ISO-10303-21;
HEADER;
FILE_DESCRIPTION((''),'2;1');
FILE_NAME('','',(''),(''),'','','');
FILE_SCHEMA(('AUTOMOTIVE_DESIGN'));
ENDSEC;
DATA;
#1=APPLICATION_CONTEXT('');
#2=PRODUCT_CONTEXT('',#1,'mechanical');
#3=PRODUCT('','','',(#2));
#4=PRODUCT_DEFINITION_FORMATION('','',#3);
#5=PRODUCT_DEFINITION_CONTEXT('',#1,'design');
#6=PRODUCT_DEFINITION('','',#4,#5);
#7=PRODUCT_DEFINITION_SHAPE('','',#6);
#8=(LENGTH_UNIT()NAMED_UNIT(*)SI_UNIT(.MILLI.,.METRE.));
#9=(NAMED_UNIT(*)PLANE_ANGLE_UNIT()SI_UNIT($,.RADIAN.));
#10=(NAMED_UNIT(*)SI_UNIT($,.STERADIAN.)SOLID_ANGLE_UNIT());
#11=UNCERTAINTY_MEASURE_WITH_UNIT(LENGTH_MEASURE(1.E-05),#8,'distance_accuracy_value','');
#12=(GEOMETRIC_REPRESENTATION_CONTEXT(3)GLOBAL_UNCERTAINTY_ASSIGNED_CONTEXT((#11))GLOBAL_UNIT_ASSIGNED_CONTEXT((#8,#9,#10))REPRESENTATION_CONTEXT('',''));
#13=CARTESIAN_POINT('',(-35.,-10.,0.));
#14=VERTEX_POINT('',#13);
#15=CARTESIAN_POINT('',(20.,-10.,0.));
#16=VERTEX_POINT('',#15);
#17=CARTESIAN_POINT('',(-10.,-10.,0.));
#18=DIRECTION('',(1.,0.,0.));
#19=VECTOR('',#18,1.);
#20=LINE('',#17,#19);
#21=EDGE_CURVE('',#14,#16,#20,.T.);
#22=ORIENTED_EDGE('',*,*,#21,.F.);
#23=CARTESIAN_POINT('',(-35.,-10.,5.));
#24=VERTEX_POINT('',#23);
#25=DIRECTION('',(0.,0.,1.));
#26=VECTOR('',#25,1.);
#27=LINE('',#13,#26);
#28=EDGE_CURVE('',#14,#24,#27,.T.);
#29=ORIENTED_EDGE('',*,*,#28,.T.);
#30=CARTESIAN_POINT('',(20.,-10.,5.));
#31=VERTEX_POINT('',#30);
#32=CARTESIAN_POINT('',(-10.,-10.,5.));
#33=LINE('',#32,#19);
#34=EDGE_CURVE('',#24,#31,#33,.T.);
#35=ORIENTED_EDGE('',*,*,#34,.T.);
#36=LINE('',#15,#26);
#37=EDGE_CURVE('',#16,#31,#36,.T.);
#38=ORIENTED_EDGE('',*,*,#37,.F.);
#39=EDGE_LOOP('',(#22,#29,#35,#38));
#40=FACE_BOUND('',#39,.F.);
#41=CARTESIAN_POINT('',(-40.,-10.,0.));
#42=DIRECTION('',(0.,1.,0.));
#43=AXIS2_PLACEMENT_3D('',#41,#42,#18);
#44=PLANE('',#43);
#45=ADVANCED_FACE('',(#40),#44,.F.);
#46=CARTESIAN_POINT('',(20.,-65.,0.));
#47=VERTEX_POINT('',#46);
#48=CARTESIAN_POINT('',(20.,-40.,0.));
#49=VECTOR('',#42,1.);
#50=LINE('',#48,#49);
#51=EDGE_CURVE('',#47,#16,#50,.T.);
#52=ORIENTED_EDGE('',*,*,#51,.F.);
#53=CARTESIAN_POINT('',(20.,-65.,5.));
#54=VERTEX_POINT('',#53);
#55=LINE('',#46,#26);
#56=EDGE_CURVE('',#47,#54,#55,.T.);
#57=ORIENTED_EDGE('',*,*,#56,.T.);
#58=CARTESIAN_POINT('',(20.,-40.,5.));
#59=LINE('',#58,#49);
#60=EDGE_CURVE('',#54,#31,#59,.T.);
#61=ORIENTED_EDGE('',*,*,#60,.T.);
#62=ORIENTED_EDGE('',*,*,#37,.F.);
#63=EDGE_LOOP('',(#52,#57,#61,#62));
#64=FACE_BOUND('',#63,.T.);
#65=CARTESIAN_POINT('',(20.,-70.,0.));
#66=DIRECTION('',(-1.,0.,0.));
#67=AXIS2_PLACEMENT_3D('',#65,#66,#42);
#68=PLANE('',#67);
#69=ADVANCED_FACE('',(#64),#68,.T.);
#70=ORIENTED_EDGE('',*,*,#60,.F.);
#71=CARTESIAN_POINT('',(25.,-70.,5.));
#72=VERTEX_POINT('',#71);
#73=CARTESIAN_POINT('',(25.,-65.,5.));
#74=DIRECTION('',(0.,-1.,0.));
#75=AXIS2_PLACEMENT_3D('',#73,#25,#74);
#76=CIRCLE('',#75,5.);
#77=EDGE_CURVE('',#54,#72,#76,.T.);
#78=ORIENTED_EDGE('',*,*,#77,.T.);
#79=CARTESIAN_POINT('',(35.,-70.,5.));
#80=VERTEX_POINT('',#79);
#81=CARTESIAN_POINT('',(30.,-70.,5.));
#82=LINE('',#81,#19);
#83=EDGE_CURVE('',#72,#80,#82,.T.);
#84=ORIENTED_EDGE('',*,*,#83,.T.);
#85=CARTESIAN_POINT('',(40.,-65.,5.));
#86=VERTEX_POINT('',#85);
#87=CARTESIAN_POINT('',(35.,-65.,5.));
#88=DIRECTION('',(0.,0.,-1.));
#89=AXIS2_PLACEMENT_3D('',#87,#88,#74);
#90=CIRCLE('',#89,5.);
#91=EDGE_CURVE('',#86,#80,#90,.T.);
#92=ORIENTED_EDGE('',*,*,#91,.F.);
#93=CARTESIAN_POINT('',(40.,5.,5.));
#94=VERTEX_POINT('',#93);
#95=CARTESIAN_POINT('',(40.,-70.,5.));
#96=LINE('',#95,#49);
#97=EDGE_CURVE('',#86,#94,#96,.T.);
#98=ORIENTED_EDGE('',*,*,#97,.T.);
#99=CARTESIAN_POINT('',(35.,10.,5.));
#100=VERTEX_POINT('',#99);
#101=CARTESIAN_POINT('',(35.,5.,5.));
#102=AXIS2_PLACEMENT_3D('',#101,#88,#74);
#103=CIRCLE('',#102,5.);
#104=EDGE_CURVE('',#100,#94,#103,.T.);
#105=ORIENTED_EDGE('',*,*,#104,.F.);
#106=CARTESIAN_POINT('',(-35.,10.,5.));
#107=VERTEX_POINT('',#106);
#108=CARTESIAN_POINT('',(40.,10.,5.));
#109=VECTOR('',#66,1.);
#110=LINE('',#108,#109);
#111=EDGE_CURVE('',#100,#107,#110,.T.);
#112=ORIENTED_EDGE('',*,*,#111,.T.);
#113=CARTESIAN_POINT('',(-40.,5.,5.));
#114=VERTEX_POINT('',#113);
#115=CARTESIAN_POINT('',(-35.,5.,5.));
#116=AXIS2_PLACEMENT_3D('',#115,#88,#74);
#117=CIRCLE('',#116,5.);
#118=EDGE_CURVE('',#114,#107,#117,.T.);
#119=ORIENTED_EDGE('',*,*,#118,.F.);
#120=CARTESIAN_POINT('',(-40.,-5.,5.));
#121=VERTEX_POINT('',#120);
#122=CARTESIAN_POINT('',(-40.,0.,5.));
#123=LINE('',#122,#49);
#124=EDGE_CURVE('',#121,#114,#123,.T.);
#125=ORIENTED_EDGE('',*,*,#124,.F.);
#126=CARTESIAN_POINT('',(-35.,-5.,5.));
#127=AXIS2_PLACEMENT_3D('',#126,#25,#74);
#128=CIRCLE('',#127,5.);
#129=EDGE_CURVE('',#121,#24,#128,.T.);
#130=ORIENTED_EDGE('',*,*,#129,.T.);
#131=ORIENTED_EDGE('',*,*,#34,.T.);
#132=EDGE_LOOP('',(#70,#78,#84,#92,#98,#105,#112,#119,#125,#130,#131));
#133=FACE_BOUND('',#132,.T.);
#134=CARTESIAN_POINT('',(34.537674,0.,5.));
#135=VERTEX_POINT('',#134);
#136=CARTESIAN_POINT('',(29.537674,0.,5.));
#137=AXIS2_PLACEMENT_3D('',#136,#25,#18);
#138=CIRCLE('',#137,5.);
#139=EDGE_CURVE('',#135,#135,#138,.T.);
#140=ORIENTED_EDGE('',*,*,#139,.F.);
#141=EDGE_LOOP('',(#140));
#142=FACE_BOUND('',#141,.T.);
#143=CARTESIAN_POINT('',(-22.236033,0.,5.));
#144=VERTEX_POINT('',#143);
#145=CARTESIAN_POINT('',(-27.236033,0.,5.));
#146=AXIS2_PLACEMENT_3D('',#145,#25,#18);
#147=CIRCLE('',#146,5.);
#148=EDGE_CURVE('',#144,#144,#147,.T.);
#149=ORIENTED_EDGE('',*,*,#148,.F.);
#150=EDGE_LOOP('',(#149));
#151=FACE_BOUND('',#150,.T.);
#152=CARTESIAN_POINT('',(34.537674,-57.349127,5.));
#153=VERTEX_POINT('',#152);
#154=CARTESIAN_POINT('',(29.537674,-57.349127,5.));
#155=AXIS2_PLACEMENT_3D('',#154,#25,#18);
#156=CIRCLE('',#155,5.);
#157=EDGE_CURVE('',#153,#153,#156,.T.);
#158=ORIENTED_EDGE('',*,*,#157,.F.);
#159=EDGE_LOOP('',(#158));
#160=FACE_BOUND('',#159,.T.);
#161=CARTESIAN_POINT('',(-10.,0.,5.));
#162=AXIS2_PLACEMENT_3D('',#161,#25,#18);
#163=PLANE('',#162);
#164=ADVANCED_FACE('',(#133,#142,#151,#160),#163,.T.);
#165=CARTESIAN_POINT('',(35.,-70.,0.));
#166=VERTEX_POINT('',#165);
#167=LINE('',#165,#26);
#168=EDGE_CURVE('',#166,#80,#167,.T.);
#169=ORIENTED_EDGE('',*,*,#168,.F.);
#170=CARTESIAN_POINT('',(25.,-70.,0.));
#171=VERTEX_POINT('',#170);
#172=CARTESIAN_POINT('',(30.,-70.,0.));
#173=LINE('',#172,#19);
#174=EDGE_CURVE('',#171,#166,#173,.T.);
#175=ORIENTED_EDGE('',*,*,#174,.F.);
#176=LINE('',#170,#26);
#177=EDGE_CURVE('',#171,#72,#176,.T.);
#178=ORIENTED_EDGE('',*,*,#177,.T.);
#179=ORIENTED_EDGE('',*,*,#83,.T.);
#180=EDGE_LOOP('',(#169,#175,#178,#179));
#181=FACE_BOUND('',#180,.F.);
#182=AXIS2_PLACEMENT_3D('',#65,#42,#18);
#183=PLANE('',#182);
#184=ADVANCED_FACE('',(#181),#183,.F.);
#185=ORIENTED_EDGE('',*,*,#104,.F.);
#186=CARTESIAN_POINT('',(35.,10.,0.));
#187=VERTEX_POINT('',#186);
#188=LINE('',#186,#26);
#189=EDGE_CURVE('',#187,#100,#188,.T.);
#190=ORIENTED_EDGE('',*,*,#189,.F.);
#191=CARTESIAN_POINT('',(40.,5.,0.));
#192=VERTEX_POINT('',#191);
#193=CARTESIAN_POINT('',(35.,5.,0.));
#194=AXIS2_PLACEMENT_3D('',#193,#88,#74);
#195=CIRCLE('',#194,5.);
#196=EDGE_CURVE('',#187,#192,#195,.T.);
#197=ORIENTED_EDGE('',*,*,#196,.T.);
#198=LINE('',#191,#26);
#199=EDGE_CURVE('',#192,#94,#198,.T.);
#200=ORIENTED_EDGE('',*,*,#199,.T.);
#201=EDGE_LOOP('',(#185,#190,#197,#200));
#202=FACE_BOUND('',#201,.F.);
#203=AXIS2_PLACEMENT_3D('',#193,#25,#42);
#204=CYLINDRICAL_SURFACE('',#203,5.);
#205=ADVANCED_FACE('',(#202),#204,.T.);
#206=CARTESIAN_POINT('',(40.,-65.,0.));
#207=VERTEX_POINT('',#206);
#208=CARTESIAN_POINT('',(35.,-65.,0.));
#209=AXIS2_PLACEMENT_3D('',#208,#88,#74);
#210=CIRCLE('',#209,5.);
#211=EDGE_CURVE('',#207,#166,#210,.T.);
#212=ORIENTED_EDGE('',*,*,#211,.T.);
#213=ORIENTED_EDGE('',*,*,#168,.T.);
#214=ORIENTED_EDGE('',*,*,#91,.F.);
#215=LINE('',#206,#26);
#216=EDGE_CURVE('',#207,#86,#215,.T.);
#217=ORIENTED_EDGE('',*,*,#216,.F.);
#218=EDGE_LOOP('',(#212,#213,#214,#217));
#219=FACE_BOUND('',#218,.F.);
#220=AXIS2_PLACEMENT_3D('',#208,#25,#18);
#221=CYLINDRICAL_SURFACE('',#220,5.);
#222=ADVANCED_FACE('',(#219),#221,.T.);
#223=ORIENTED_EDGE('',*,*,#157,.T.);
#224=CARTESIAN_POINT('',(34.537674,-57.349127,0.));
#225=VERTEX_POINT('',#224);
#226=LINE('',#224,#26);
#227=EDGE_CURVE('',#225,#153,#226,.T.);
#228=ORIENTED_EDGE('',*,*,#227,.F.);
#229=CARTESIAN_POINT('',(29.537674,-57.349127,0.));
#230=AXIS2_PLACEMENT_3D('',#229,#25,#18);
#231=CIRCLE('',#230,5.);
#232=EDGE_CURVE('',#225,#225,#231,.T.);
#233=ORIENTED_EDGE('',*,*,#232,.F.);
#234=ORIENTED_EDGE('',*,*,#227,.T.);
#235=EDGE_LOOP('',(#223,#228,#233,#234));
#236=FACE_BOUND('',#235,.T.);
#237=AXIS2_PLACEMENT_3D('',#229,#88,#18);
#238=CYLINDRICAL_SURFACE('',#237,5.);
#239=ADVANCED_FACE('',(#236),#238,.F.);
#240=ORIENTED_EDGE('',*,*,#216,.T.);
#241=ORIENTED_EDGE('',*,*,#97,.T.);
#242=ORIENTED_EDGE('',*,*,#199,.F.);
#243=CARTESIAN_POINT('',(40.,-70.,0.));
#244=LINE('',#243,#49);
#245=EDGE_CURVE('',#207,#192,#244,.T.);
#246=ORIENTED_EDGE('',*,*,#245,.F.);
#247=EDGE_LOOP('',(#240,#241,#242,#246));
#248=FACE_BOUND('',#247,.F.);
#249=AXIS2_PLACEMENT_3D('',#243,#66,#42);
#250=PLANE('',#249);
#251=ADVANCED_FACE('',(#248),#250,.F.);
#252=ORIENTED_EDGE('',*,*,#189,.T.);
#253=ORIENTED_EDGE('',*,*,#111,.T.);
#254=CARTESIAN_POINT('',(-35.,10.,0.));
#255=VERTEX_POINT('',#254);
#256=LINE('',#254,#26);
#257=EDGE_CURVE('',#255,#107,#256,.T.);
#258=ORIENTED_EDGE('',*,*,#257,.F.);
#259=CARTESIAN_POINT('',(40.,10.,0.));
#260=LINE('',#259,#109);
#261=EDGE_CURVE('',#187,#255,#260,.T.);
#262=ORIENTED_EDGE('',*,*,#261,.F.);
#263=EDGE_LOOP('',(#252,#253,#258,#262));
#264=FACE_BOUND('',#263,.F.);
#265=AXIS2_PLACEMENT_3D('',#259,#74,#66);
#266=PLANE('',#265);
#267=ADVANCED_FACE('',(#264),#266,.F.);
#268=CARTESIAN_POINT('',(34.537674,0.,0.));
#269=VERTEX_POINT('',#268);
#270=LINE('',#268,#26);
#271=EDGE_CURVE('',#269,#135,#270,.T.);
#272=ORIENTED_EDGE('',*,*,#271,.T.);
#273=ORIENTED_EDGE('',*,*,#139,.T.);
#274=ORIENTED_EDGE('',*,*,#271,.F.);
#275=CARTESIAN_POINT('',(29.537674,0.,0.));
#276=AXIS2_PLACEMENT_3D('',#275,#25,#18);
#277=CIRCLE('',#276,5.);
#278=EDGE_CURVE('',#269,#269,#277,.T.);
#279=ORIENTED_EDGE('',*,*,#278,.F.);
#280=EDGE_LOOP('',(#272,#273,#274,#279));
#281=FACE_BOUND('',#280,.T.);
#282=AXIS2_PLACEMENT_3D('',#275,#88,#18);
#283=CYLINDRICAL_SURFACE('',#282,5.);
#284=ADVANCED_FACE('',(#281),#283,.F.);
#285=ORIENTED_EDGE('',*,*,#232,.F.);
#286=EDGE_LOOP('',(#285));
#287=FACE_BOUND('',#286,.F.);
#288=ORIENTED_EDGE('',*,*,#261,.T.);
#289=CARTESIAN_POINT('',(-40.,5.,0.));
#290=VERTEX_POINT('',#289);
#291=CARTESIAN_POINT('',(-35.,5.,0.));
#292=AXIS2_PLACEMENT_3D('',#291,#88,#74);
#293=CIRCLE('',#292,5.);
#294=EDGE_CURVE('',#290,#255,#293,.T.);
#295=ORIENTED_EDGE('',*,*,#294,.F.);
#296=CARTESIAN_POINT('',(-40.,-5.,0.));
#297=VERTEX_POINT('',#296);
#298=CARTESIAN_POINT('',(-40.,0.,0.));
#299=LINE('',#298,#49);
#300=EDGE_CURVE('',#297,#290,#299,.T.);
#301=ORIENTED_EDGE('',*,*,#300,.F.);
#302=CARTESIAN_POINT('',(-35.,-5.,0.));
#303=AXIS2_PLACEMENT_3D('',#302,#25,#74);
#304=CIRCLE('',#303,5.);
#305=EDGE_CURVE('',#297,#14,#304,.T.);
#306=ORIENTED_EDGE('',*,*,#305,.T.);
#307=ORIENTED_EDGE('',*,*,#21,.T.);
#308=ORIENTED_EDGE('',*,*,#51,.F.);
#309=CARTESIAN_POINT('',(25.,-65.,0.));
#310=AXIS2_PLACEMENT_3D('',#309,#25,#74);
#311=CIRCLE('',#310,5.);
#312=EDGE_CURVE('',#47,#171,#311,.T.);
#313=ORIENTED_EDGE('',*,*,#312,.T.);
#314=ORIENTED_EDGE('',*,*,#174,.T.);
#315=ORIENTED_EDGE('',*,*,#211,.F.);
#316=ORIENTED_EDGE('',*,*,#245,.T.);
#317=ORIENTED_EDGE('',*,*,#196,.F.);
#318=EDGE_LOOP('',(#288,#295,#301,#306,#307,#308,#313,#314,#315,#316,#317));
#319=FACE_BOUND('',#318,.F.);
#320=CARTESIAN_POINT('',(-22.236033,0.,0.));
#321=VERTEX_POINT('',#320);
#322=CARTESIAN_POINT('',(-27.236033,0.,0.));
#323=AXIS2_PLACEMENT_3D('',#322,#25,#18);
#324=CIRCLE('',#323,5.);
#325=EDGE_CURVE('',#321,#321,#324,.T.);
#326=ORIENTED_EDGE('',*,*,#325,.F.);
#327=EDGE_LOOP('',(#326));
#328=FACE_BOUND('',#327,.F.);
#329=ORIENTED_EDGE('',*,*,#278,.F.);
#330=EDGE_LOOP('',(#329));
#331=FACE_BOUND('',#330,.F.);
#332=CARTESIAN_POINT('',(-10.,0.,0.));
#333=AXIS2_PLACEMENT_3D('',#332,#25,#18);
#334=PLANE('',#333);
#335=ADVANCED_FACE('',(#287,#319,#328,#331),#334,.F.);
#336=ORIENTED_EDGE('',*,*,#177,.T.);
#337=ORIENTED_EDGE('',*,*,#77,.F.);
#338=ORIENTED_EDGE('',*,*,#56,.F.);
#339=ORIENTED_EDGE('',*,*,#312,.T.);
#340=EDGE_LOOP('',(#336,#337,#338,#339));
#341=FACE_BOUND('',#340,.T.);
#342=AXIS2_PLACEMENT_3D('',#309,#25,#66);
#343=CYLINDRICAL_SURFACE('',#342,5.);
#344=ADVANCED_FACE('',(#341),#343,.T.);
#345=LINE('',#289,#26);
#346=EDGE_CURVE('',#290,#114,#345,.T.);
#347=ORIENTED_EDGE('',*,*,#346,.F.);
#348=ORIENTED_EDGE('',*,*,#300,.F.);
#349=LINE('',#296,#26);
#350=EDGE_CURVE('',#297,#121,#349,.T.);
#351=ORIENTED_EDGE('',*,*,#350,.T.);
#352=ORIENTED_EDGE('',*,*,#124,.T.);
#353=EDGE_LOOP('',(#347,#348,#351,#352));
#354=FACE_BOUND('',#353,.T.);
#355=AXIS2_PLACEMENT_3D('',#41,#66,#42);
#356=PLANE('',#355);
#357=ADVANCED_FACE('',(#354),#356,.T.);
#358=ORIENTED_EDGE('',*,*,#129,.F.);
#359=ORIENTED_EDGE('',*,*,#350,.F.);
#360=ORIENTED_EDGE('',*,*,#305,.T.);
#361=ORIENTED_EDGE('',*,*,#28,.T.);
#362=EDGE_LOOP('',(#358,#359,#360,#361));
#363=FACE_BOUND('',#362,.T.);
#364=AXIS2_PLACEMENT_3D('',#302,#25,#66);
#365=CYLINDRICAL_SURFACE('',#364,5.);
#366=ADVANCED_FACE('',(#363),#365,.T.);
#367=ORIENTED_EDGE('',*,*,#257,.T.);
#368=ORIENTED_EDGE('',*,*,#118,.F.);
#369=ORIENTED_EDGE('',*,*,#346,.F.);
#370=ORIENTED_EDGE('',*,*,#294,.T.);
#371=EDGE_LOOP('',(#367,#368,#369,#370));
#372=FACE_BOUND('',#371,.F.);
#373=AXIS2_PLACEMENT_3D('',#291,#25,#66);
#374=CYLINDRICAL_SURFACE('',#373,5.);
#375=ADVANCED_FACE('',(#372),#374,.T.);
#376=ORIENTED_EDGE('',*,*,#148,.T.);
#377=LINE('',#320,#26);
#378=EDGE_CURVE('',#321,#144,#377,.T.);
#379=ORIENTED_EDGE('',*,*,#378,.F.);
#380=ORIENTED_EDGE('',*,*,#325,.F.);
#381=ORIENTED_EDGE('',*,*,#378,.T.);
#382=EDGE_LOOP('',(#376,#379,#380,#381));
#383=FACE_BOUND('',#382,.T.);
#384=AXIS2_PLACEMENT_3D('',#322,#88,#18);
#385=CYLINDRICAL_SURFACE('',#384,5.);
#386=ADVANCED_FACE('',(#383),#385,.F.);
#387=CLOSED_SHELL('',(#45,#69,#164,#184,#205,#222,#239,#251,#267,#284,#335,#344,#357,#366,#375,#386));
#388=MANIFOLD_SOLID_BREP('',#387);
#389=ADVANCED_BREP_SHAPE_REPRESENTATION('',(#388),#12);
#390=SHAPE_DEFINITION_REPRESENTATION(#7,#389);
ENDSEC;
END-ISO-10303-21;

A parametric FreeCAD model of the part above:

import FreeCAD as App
import Part
import Sketcher
from FreeCAD import Vector


def edges_at(feature, points):
    """Names of the edges that pass closest to the given points."""
    edges = feature.Shape.Edges
    near = lambda p: min(range(len(edges)), key=lambda i: edges[i].distToShape(Part.Vertex(*p))[0])
    return sorted({f"Edge{near(p) + 1}" for p in points})

doc = App.newDocument("Part")
body = doc.addObject("PartDesign::Body", "Body")

sketch1 = body.newObject("Sketcher::SketchObject", "Sketch")
sketch1.AttachmentSupport = (doc.getObject("XY_Plane"), [""])
sketch1.MapMode = "FlatFace"
sketch1.addGeometry([
    Part.LineSegment(Vector(-40, 10, 0), Vector(-40, -10, 0)),
    Part.LineSegment(Vector(-40, -10, 0), Vector(20, -10, 0)),
    Part.LineSegment(Vector(20, -10, 0), Vector(20, -70, 0)),
    Part.LineSegment(Vector(20, -70, 0), Vector(40, -70, 0)),
    Part.LineSegment(Vector(40, -70, 0), Vector(40, 10, 0)),
    Part.LineSegment(Vector(40, 10, 0), Vector(-40, 10, 0)),
    Part.Circle(Vector(30, -57, 0), Vector(0, 0, 1), 5),
    Part.Circle(Vector(-27, 0, 0), Vector(0, 0, 1), 5),
    Part.Circle(Vector(30, 0, 0), Vector(0, 0, 1), 5),
], False)
sketch1.addConstraint([
    Sketcher.Constraint("Coincident", 0, 2, 1, 1),
    Sketcher.Constraint("Coincident", 1, 2, 2, 1),
    Sketcher.Constraint("Coincident", 2, 2, 3, 1),
    Sketcher.Constraint("Coincident", 3, 2, 4, 1),
    Sketcher.Constraint("Coincident", 4, 2, 5, 1),
    Sketcher.Constraint("Coincident", 5, 2, 0, 1),
    Sketcher.Constraint("Vertical", 0),
    Sketcher.Constraint("Horizontal", 1),
    Sketcher.Constraint("Vertical", 2),
    Sketcher.Constraint("Horizontal", 3),
    Sketcher.Constraint("Vertical", 4),
    Sketcher.Constraint("Horizontal", 5),
    Sketcher.Constraint("Equal", 6, 7),
    Sketcher.Constraint("Equal", 7, 8),
    Sketcher.Constraint("Symmetric", 0, 2, 4, 2, -1, 1),
    Sketcher.Constraint("PointOnObject", 7, 3, -1),
    Sketcher.Constraint("PointOnObject", 8, 3, -1),
    Sketcher.Constraint("Vertical", 6, 3, 8, 3),
    Sketcher.Constraint("Equal", 3, 0),
    Sketcher.Constraint("Equal", 1, 2),
    Sketcher.Constraint("Diameter", 6, 10.0),
    Sketcher.Constraint("DistanceX", 1, 1, 1, 2, 60.0),
    Sketcher.Constraint("DistanceX", 3, 1, 3, 2, 20.0),
    Sketcher.Constraint("DistanceX", -1, 1, 6, 3, 29.537674),
    Sketcher.Constraint("DistanceY", 6, 3, -1, 1, 57.349127),
    Sketcher.Constraint("DistanceX", 7, 3, -1, 1, 27.236033),
])
pad1 = body.newObject("PartDesign::Pad", "Pad")
pad1.Profile = sketch1
pad1.Length = 5
doc.recompute()

fillet = body.newObject("PartDesign::Fillet", "Fillet")
fillet.Base = (pad1, edges_at(pad1, [
    (20, -70, 2.5),
    (40, -70, 2.5),
    (40, 10, 2.5),
    (-40, -10, 2.5),
    (-40, 10, 2.5),
]))
fillet.Radius = 5

doc.recompute()
